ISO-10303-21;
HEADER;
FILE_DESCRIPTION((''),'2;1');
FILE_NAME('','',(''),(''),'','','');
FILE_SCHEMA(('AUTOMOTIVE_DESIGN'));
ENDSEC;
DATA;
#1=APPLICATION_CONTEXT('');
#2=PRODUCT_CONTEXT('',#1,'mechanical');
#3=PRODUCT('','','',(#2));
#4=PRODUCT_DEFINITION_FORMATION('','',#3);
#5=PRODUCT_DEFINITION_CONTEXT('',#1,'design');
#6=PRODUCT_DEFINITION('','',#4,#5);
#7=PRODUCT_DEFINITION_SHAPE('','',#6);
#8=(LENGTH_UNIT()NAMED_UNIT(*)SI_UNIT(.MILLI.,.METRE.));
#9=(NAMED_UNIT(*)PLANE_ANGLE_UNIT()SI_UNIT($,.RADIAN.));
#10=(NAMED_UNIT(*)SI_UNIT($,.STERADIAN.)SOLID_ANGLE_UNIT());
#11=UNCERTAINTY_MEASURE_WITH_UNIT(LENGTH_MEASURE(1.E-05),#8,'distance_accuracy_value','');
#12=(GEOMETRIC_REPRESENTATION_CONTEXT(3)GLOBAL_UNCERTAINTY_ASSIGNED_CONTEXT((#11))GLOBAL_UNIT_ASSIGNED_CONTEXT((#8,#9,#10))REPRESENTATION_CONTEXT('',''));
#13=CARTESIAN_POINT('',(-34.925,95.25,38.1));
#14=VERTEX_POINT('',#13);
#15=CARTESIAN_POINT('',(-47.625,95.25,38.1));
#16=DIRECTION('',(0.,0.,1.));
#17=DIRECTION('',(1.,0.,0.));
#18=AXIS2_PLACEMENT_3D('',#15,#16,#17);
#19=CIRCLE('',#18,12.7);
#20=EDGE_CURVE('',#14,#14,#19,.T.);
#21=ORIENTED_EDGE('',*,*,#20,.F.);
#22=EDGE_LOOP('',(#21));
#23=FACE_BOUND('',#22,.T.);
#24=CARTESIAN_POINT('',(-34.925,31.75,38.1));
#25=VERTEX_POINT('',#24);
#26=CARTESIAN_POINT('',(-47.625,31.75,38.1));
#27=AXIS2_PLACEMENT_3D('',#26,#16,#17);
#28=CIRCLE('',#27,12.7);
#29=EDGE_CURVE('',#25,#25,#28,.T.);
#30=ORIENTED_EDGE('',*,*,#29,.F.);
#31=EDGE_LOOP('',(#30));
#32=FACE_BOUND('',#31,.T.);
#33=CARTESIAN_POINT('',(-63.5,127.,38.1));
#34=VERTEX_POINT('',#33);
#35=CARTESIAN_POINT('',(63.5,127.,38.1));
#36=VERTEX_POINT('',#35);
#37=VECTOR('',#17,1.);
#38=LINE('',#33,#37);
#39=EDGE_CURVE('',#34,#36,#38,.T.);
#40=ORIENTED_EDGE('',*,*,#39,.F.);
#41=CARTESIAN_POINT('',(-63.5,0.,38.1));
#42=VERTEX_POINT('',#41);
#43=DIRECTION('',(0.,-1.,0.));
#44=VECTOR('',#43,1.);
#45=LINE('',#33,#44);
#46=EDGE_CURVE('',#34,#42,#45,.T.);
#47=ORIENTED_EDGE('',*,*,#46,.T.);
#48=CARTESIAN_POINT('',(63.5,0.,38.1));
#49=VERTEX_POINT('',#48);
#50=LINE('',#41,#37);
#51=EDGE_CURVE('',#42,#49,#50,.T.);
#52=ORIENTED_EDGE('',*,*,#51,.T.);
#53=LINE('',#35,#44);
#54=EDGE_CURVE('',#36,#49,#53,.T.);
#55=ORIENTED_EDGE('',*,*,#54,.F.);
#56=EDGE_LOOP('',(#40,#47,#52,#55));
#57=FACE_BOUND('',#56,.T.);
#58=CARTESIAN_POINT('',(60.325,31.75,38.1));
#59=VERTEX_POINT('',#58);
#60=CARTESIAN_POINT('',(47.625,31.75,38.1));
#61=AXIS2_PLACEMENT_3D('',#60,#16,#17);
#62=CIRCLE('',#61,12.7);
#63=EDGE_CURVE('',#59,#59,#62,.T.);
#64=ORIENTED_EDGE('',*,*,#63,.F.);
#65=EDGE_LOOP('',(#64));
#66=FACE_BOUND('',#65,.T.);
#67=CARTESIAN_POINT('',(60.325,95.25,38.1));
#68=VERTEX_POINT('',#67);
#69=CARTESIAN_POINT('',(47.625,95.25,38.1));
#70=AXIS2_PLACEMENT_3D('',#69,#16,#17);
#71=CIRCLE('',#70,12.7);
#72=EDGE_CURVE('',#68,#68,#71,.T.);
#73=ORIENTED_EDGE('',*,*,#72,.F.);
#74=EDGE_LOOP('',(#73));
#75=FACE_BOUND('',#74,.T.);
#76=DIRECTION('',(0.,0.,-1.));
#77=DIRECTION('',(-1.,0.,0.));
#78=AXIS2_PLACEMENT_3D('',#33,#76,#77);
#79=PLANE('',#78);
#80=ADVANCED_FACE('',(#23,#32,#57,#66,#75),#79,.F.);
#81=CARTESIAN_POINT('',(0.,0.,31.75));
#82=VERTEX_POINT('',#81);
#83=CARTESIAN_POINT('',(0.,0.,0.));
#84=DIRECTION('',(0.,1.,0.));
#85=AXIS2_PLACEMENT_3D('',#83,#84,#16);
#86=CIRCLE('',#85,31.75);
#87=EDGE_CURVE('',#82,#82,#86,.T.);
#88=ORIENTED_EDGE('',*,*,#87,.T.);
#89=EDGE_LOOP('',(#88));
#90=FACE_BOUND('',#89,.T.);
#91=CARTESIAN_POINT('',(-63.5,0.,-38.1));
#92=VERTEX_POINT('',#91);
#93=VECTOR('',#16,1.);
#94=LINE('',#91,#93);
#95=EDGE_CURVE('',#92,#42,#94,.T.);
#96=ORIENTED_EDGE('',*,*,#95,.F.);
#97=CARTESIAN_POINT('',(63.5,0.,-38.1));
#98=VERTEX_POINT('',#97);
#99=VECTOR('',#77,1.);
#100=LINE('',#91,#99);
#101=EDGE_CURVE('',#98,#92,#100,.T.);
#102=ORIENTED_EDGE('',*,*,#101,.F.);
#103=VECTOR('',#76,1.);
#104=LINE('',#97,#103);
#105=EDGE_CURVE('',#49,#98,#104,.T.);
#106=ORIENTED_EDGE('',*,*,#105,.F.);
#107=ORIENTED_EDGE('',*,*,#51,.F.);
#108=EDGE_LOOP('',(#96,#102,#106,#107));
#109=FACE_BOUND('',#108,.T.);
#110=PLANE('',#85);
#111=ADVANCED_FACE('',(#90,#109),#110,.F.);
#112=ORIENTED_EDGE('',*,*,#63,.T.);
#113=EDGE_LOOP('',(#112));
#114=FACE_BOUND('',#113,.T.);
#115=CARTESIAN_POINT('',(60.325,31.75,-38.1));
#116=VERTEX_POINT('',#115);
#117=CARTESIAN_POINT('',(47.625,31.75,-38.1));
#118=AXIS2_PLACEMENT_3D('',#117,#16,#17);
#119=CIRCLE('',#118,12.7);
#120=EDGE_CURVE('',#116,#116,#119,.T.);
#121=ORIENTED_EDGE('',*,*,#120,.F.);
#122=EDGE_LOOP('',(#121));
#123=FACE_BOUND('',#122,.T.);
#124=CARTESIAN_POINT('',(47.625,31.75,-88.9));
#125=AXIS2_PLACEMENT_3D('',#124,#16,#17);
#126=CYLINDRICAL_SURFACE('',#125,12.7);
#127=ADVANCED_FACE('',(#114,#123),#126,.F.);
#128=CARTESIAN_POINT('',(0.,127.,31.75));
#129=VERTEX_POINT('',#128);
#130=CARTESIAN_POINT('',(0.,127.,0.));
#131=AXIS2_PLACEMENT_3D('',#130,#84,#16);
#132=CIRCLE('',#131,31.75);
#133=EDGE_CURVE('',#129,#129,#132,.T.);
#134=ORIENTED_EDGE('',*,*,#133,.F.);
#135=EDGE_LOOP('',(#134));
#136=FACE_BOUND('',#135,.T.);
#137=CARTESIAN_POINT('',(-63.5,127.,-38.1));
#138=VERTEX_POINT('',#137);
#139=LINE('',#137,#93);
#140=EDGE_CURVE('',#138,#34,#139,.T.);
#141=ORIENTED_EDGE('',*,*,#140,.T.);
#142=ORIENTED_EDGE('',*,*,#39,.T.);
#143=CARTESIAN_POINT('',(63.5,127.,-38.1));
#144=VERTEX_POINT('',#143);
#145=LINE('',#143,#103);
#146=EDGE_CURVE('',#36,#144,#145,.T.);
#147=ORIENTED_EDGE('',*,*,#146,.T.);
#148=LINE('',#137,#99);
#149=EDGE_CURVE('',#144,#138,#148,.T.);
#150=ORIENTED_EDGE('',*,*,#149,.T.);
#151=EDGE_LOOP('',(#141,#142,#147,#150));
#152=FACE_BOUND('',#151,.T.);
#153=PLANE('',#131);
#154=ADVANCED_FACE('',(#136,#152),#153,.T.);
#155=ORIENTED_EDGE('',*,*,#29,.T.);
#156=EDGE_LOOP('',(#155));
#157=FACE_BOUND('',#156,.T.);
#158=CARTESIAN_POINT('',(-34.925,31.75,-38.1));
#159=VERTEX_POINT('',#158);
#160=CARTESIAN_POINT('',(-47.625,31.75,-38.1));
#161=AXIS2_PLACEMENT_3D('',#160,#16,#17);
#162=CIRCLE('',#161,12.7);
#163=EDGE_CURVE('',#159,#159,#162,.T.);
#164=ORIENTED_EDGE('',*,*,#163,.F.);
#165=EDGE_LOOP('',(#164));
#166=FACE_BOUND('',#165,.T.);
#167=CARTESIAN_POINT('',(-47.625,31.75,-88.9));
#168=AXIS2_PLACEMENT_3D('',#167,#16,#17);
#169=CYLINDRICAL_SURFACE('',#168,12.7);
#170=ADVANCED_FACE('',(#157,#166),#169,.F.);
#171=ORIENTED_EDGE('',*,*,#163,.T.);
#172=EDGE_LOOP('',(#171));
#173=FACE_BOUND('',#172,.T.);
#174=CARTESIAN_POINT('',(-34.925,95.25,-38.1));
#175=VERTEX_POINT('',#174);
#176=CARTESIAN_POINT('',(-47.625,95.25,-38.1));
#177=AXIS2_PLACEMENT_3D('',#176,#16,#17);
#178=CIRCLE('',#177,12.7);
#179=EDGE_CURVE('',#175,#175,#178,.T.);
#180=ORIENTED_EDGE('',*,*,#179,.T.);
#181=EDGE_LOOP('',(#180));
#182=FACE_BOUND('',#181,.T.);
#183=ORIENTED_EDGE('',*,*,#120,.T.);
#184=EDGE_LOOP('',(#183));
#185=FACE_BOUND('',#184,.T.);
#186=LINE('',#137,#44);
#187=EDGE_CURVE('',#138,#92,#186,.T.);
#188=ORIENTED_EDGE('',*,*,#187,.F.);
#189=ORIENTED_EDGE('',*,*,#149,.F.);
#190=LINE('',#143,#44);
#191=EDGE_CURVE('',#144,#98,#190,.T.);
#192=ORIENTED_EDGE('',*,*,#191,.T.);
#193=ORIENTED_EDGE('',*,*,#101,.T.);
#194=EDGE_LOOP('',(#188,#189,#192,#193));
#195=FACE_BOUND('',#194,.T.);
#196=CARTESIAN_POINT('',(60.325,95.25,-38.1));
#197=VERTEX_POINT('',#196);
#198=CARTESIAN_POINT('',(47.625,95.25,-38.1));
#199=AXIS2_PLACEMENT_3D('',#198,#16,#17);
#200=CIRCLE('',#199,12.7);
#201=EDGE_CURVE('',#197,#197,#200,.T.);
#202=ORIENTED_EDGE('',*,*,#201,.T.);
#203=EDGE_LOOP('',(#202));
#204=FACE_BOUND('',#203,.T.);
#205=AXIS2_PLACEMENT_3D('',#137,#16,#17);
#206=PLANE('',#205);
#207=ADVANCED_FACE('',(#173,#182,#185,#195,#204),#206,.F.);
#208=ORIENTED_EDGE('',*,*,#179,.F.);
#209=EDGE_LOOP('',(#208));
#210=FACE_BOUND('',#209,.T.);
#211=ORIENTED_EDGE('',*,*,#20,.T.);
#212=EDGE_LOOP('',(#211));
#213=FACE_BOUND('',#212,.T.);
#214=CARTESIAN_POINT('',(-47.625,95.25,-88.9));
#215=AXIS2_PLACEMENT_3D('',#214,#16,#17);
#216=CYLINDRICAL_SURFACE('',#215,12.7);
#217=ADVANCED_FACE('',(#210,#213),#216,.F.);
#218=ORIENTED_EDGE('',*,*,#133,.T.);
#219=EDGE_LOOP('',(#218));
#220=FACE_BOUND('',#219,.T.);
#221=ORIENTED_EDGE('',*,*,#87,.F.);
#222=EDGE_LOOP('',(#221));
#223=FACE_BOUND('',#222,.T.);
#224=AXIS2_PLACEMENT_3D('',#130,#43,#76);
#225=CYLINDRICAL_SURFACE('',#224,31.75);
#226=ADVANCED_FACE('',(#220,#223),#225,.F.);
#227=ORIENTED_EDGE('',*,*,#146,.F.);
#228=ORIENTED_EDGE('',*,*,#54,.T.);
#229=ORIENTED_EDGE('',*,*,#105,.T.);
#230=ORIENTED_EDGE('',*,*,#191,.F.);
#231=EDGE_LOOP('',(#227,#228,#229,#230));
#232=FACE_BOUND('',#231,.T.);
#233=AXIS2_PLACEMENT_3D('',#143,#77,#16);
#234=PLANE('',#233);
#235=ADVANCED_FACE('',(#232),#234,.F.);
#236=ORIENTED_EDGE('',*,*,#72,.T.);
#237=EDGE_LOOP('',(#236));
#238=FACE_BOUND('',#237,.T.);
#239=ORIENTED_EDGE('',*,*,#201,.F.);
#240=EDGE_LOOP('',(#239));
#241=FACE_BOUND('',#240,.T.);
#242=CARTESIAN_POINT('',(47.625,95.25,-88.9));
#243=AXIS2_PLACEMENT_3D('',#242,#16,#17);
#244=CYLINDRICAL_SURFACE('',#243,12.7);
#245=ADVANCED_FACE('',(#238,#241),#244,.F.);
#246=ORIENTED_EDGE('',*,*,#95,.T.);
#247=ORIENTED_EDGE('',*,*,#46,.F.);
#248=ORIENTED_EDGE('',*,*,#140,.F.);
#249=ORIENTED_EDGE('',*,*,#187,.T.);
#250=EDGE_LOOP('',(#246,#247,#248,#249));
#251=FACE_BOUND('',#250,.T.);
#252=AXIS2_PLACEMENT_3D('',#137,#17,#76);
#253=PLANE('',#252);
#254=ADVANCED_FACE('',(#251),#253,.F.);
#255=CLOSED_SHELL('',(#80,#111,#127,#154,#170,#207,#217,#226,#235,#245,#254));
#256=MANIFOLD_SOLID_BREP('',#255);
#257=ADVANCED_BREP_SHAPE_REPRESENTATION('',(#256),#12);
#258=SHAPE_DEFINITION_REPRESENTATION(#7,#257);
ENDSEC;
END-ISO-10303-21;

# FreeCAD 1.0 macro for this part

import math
import FreeCAD as App
import Part
import Sketcher
Q = App.Units.Quantity


def add_polygon(sketch, points):
    """Adds a closed chain of lines whose ends are joined by coincident constraints."""
    first, n = sketch.GeometryCount, len(points)
    for a, b in zip(points, points[1:] + points[:1]):
        sketch.addGeometry(Part.LineSegment(App.Vector(*a, 0), App.Vector(*b, 0)), False)
    for i in range(n):
        sketch.addConstraint(Sketcher.Constraint("Coincident", first + i, 2, first + (i + 1) % n, 1))

doc = App.newDocument("Part")
params = doc.addObject("Spreadsheet::Sheet", "Params")
for row, (alias, value) in enumerate([
    ("sketch1_diameter", "2.5 in"),
    ("sketch1_width", "5 in"),
    ("sketch1_height", "3 in"),
    ("pad1_length", "5 in"),
    ("sketch2_diameter", "1 in"),
    ("pocket1_length", "5 in"),
], start=1):
    params.set(f"A{row}", alias)
    params.set(f"B{row}", "=" + value)
    params.setAlias(f"B{row}", alias)

body = doc.addObject("PartDesign::Body", "Body")

sketch1 = doc.addObject("Sketcher::SketchObject", "Sketch")
body.addObject(sketch1)
sketch1.AttachmentSupport = (doc.XZ_Plane, [""])
sketch1.MapMode = "FlatFace"
add_polygon(sketch1, [(-63.5, -38.1), (-63.5, 38.1), (63.5, 38.1), (63.5, -38.1)])
sketch1.addGeometry(Part.Circle(App.Vector(0, 0, 0), App.Vector(0, 0, 1), 31.75), False)
sketch1.addConstraint(Sketcher.Constraint("Vertical", 0))
sketch1.addConstraint(Sketcher.Constraint("Horizontal", 1))
sketch1.addConstraint(Sketcher.Constraint("Vertical", 2))
sketch1.addConstraint(Sketcher.Constraint("Horizontal", 3))
sketch1.addConstraint(Sketcher.Constraint("Coincident", 4, 3, -1, 1))
sketch1.addConstraint(Sketcher.Constraint("Symmetric", 0, 2, 2, 2, -1, 1))
sketch1.addConstraint(Sketcher.Constraint("Diameter", 4, Q("2.5 in")))
sketch1.addConstraint(Sketcher.Constraint("DistanceX", 1, 1, 1, 2, Q("5 in")))
sketch1.addConstraint(Sketcher.Constraint("DistanceY", 0, 1, 0, 2, Q("3 in")))
sketch1.setExpression("Constraints[10]", "Params.sketch1_diameter")
sketch1.setExpression("Constraints[11]", "Params.sketch1_width")
sketch1.setExpression("Constraints[12]", "Params.sketch1_height")
pad1 = doc.addObject("PartDesign::Pad", "Pad")
body.addObject(pad1)
pad1.Profile = sketch1
pad1.setExpression("Length", "Params.pad1_length")
pad1.Reversed = True

sketch2 = doc.addObject("Sketcher::SketchObject", "Sketch001")
body.addObject(sketch2)
sketch2.AttachmentSupport = (doc.XY_Plane, [""])
sketch2.MapMode = "FlatFace"
sketch2.AttachmentOffset = App.Placement(App.Vector(0, 0, 1.5 * 25.4), App.Rotation())
sketch2.addGeometry(Part.ArcOfCircle(Part.Circle(App.Vector(47.625, 95.25, 0), App.Vector(0, 0, 1), 12.7), math.radians(0), math.radians(90)), False)
sketch2.addGeometry(Part.ArcOfCircle(Part.Circle(App.Vector(47.625, 95.25, 0), App.Vector(0, 0, 1), 12.7), math.radians(90), math.radians(270)), False)
sketch2.addGeometry(Part.ArcOfCircle(Part.Circle(App.Vector(47.625, 95.25, 0), App.Vector(0, 0, 1), 12.7), math.radians(-90), math.radians(0)), False)
sketch2.addGeometry(Part.ArcOfCircle(Part.Circle(App.Vector(47.625, 31.75, 0), App.Vector(0, 0, 1), 12.7), math.radians(0), math.radians(90)), False)
sketch2.addGeometry(Part.ArcOfCircle(Part.Circle(App.Vector(47.625, 31.75, 0), App.Vector(0, 0, 1), 12.7), math.radians(90), math.radians(270)), False)
sketch2.addGeometry(Part.ArcOfCircle(Part.Circle(App.Vector(47.625, 31.75, 0), App.Vector(0, 0, 1), 12.7), math.radians(-90), math.radians(0)), False)
sketch2.addGeometry(Part.Circle(App.Vector(-47.625, 31.75, 0), App.Vector(0, 0, 1), 12.7), False)
sketch2.addGeometry(Part.Circle(App.Vector(-47.625, 95.25, 0), App.Vector(0, 0, 1), 12.7), False)
sketch2.addConstraint(Sketcher.Constraint("Tangent", 0, 2, 1, 1))
sketch2.addConstraint(Sketcher.Constraint("Tangent", 1, 2, 2, 1))
sketch2.addConstraint(Sketcher.Constraint("Tangent", 2, 2, 0, 1))
sketch2.addConstraint(Sketcher.Constraint("Tangent", 3, 2, 4, 1))
sketch2.addConstraint(Sketcher.Constraint("Tangent", 4, 2, 5, 1))
sketch2.addConstraint(Sketcher.Constraint("Tangent", 5, 2, 3, 1))
sketch2.addConstraint(Sketcher.Constraint("Equal", 2, 3))
sketch2.addConstraint(Sketcher.Constraint("Equal", 5, 6))
sketch2.addConstraint(Sketcher.Constraint("Equal", 6, 7))
sketch2.addConstraint(Sketcher.Constraint("Symmetric", 3, 3, 6, 3, -2))
sketch2.addConstraint(Sketcher.Constraint("Symmetric", 0, 3, 7, 3, -2))
sketch2.addConstraint(Sketcher.Constraint("Horizontal", 7, 3, 2, 2))
sketch2.addConstraint(Sketcher.Constraint("Horizontal", 6, 3, 5, 2))
sketch2.addConstraint(Sketcher.Constraint("Vertical", 2, 3, 3, 3))
sketch2.addConstraint(Sketcher.Constraint("Vertical", 5, 3, 0, 2))
sketch2.addConstraint(Sketcher.Constraint("Vertical", 0, 2, 1, 2))
sketch2.addConstraint(Sketcher.Constraint("Vertical", 1, 2, 3, 2))
sketch2.addConstraint(Sketcher.Constraint("Vertical", 3, 2, 4, 2))
sketch2.addConstraint(Sketcher.Constraint("Diameter", 6, Q("1 in")))
sketch2.addConstraint(Sketcher.Constraint("DistanceY", 3, 3, 0, 2, Q("3 in")))
sketch2.addConstraint(Sketcher.Constraint("DistanceY", -1, 1, 0, 3, Q("3.75 in")))
sketch2.addConstraint(Sketcher.Constraint("DistanceX", 6, 3, 3, 3, Q("3.75 in")))
sketch2.setExpression("Constraints[18]", "Params.sketch2_diameter")
pocket1 = doc.addObject("PartDesign::Pocket", "Pocket")
body.addObject(pocket1)
pocket1.Profile = sketch2
pocket1.setExpression("Length", "Params.pocket1_length")

doc.recompute()
